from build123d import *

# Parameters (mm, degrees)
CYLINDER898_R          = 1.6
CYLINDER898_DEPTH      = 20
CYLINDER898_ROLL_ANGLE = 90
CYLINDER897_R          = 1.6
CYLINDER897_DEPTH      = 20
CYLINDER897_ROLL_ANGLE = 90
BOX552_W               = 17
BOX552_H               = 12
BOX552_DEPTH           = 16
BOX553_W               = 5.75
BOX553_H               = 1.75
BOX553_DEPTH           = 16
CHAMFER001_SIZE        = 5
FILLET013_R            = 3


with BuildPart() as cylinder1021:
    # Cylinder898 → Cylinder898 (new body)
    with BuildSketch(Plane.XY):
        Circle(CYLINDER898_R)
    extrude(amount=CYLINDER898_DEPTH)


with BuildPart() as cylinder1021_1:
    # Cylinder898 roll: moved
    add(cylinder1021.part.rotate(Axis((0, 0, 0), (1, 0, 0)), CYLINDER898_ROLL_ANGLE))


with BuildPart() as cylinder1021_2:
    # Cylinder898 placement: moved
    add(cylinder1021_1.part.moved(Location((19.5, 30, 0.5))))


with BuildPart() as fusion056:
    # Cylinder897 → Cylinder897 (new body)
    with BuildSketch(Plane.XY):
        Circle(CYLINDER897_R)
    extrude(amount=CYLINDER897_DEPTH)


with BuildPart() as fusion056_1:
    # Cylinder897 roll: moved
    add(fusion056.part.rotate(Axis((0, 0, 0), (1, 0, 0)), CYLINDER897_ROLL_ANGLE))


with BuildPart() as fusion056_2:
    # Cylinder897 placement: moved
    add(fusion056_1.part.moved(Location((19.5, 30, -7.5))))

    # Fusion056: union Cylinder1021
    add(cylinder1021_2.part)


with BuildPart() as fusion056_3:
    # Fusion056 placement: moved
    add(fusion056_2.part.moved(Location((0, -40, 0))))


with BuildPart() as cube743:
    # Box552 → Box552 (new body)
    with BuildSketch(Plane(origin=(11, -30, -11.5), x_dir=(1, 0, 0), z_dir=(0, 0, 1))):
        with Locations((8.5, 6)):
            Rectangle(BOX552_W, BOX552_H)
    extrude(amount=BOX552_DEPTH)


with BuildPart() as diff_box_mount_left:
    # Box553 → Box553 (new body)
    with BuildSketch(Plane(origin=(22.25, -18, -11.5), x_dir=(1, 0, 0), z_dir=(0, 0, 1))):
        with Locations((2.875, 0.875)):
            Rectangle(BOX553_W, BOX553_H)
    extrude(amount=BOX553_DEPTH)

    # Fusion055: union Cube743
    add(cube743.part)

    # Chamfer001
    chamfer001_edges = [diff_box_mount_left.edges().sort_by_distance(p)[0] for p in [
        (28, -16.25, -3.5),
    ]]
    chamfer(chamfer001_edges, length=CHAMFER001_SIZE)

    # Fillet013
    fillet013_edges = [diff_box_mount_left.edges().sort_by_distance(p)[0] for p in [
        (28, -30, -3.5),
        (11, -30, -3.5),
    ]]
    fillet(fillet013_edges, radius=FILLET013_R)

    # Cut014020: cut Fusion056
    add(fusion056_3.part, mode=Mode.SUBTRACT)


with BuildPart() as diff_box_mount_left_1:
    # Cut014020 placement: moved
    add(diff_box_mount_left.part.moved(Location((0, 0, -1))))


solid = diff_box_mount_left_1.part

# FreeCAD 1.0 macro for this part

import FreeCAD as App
import Part
import Sketcher
Q = App.Units.Quantity


def edges_at(feature, points):
    """Names of the edges that pass closest to the given points."""
    edges = feature.Shape.Edges
    near = lambda p: min(range(len(edges)), key=lambda i: edges[i].distToShape(Part.Vertex(*p))[0])
    return sorted({f"Edge{near(p) + 1}" for p in points})

doc = App.newDocument("Part")
body = doc.addObject("PartDesign::Body", "Body")

# Sketch on XY plane
sketch1 = body.newObject("Sketcher::SketchObject", "Sketch")
sketch1.AttachmentSupport = (doc.getObject("XY_Plane"), [""])
sketch1.MapMode = "FlatFace"
sketch1.addGeometry(Part.Circle(App.Vector(0, 0, 0), App.Vector(0, 0, 1), 1.6), False)
sketch1.addConstraint([
    Sketcher.Constraint("Coincident", 0, 3, -1, 1),
    Sketcher.Constraint("Diameter", 0, Q("3.2 mm")),
])
pad1 = body.newObject("PartDesign::Pad", "Pad")
pad1.Profile = sketch1
pad1.Length = 20
body2 = doc.addObject("PartDesign::Body", "Body001")
doc.recompute()

body.Placement = App.Placement(App.Vector(0, 0, 0), App.Rotation(App.Vector(1, 0, 0), 90))
boolean = body2.newObject("PartDesign::Boolean", "Boolean")
boolean.Type = "Fuse"
boolean.addObjects([body])
body3 = doc.addObject("PartDesign::Body", "Body002")
doc.recompute()

body2.Placement = App.Placement(App.Vector(19.5, 30, 0.5), App.Rotation(App.Vector(0, 0, 1), 0))
boolean2 = body3.newObject("PartDesign::Boolean", "Boolean001")
boolean2.Type = "Fuse"
boolean2.addObjects([body2])
body4 = doc.addObject("PartDesign::Body", "Body003")

# Sketch on XY plane
sketch2 = body4.newObject("Sketcher::SketchObject", "Sketch001")
sketch2.AttachmentSupport = (doc.getObject("XY_Plane003"), [""])
sketch2.MapMode = "FlatFace"
sketch2.addGeometry(Part.Circle(App.Vector(0, 0, 0), App.Vector(0, 0, 1), 1.6), False)
sketch2.addConstraint([
    Sketcher.Constraint("Coincident", 0, 3, -1, 1),
    Sketcher.Constraint("Diameter", 0, Q("3.2 mm")),
])
pad2 = body4.newObject("PartDesign::Pad", "Pad001")
pad2.Profile = sketch2
pad2.Length = 20
body5 = doc.addObject("PartDesign::Body", "Body004")
doc.recompute()

body4.Placement = App.Placement(App.Vector(0, 0, 0), App.Rotation(App.Vector(1, 0, 0), 90))
boolean3 = body5.newObject("PartDesign::Boolean", "Boolean002")
boolean3.Type = "Fuse"
boolean3.addObjects([body4])
body6 = doc.addObject("PartDesign::Body", "Body005")
body6.AllowCompound = True
doc.recompute()

body5.Placement = App.Placement(App.Vector(19.5, 30, -7.5), App.Rotation(App.Vector(0, 0, 1), 0))
boolean4 = body6.newObject("PartDesign::Boolean", "Boolean003")
boolean4.Type = "Fuse"
boolean4.addObjects([body5])
doc.recompute()

boolean5 = body6.newObject("PartDesign::Boolean", "Boolean004")
boolean5.Type = "Fuse"
boolean5.addObjects([body3])
body7 = doc.addObject("PartDesign::Body", "Body006")
body7.AllowCompound = True
doc.recompute()

body6.Placement = App.Placement(App.Vector(0, -40, 0), App.Rotation(App.Vector(0, 0, 1), 0))
boolean6 = body7.newObject("PartDesign::Boolean", "Boolean005")
boolean6.Type = "Fuse"
boolean6.addObjects([body6])
body8 = doc.addObject("PartDesign::Body", "Body007")

# Sketch on XY plane
sketch3 = body8.newObject("Sketcher::SketchObject", "Sketch002")
sketch3.AttachmentSupport = (doc.getObject("XY_Plane007"), [""])
sketch3.MapMode = "FlatFace"
sketch3.AttachmentOffset = App.Placement(App.Vector(0, 0, -11.5), App.Rotation())
sketch3.addGeometry([
    Part.LineSegment(App.Vector(11, -18, 0), App.Vector(11, -30, 0)),
    Part.LineSegment(App.Vector(11, -30, 0), App.Vector(28, -30, 0)),
    Part.LineSegment(App.Vector(28, -30, 0), App.Vector(28, -18, 0)),
    Part.LineSegment(App.Vector(28, -18, 0), App.Vector(11, -18, 0)),
], False)
sketch3.addConstraint([
    Sketcher.Constraint("Coincident", 0, 2, 1, 1),
    Sketcher.Constraint("Coincident", 1, 2, 2, 1),
    Sketcher.Constraint("Coincident", 2, 2, 3, 1),
    Sketcher.Constraint("Coincident", 3, 2, 0, 1),
    Sketcher.Constraint("Vertical", 0),
    Sketcher.Constraint("Horizontal", 1),
    Sketcher.Constraint("Vertical", 2),
    Sketcher.Constraint("Horizontal", 3),
    Sketcher.Constraint("DistanceX", 1, 1, 1, 2, Q("17 mm")),
    Sketcher.Constraint("DistanceY", 0, 2, 0, 1, Q("12 mm")),
    Sketcher.Constraint("DistanceX", -1, 1, 0, 2, Q("11 mm")),
    Sketcher.Constraint("DistanceY", 0, 2, -1, 1, Q("30 mm")),
])
pad3 = body8.newObject("PartDesign::Pad", "Pad002")
pad3.Profile = sketch3
pad3.Length = 16
body9 = doc.addObject("PartDesign::Body", "Body008")

# Sketch on XY plane
sketch4 = body9.newObject("Sketcher::SketchObject", "Sketch003")
sketch4.AttachmentSupport = (doc.getObject("XY_Plane008"), [""])
sketch4.MapMode = "FlatFace"
sketch4.AttachmentOffset = App.Placement(App.Vector(0, 0, -11.5), App.Rotation())
sketch4.addGeometry([
    Part.LineSegment(App.Vector(22.2, -16.2, 0), App.Vector(22.2, -18, 0)),
    Part.LineSegment(App.Vector(22.2, -18, 0), App.Vector(28, -18, 0)),
    Part.LineSegment(App.Vector(28, -18, 0), App.Vector(28, -16.2, 0)),
    Part.LineSegment(App.Vector(28, -16.2, 0), App.Vector(22.2, -16.2, 0)),
], False)
sketch4.addConstraint([
    Sketcher.Constraint("Coincident", 0, 2, 1, 1),
    Sketcher.Constraint("Coincident", 1, 2, 2, 1),
    Sketcher.Constraint("Coincident", 2, 2, 3, 1),
    Sketcher.Constraint("Coincident", 3, 2, 0, 1),
    Sketcher.Constraint("Vertical", 0),
    Sketcher.Constraint("Horizontal", 1),
    Sketcher.Constraint("Vertical", 2),
    Sketcher.Constraint("Horizontal", 3),
    Sketcher.Constraint("DistanceY", 0, 2, -1, 1, Q("18 mm")),
    Sketcher.Constraint("DistanceX", -1, 1, 1, 2, Q("28 mm")),
    Sketcher.Constraint("DistanceX", 1, 1, 1, 2, Q("5.75 mm")),
    Sketcher.Constraint("DistanceY", 0, 2, 0, 1, Q("1.75 mm")),
])
pad4 = body9.newObject("PartDesign::Pad", "Pad003")
pad4.Profile = sketch4
pad4.Length = 16
doc.recompute()

boolean7 = body9.newObject("PartDesign::Boolean", "Boolean006")
boolean7.Type = "Fuse"
boolean7.addObjects([body8])
doc.recompute()

chamfer = body9.newObject("PartDesign::Chamfer", "Chamfer")
chamfer.Base = (boolean7, edges_at(boolean7, [(28, -16.25, -3.5)]))
chamfer.Size = 5
doc.recompute()

fillet = body9.newObject("PartDesign::Fillet", "Fillet")
fillet.Base = (chamfer, edges_at(chamfer, [(28, -30, -3.5), (11, -30, -3.5)]))
fillet.Radius = 3
doc.recompute()

boolean8 = body9.newObject("PartDesign::Boolean", "Boolean007")
boolean8.Type = "Cut"
boolean8.addObjects([body7])
body10 = doc.addObject("PartDesign::Body", "Body009")
doc.recompute()

body9.Placement = App.Placement(App.Vector(0, 0, -1), App.Rotation(App.Vector(0, 0, 1), 0))
boolean9 = body10.newObject("PartDesign::Boolean", "Boolean008")
boolean9.Type = "Fuse"
boolean9.addObjects([body9])

doc.recompute()
